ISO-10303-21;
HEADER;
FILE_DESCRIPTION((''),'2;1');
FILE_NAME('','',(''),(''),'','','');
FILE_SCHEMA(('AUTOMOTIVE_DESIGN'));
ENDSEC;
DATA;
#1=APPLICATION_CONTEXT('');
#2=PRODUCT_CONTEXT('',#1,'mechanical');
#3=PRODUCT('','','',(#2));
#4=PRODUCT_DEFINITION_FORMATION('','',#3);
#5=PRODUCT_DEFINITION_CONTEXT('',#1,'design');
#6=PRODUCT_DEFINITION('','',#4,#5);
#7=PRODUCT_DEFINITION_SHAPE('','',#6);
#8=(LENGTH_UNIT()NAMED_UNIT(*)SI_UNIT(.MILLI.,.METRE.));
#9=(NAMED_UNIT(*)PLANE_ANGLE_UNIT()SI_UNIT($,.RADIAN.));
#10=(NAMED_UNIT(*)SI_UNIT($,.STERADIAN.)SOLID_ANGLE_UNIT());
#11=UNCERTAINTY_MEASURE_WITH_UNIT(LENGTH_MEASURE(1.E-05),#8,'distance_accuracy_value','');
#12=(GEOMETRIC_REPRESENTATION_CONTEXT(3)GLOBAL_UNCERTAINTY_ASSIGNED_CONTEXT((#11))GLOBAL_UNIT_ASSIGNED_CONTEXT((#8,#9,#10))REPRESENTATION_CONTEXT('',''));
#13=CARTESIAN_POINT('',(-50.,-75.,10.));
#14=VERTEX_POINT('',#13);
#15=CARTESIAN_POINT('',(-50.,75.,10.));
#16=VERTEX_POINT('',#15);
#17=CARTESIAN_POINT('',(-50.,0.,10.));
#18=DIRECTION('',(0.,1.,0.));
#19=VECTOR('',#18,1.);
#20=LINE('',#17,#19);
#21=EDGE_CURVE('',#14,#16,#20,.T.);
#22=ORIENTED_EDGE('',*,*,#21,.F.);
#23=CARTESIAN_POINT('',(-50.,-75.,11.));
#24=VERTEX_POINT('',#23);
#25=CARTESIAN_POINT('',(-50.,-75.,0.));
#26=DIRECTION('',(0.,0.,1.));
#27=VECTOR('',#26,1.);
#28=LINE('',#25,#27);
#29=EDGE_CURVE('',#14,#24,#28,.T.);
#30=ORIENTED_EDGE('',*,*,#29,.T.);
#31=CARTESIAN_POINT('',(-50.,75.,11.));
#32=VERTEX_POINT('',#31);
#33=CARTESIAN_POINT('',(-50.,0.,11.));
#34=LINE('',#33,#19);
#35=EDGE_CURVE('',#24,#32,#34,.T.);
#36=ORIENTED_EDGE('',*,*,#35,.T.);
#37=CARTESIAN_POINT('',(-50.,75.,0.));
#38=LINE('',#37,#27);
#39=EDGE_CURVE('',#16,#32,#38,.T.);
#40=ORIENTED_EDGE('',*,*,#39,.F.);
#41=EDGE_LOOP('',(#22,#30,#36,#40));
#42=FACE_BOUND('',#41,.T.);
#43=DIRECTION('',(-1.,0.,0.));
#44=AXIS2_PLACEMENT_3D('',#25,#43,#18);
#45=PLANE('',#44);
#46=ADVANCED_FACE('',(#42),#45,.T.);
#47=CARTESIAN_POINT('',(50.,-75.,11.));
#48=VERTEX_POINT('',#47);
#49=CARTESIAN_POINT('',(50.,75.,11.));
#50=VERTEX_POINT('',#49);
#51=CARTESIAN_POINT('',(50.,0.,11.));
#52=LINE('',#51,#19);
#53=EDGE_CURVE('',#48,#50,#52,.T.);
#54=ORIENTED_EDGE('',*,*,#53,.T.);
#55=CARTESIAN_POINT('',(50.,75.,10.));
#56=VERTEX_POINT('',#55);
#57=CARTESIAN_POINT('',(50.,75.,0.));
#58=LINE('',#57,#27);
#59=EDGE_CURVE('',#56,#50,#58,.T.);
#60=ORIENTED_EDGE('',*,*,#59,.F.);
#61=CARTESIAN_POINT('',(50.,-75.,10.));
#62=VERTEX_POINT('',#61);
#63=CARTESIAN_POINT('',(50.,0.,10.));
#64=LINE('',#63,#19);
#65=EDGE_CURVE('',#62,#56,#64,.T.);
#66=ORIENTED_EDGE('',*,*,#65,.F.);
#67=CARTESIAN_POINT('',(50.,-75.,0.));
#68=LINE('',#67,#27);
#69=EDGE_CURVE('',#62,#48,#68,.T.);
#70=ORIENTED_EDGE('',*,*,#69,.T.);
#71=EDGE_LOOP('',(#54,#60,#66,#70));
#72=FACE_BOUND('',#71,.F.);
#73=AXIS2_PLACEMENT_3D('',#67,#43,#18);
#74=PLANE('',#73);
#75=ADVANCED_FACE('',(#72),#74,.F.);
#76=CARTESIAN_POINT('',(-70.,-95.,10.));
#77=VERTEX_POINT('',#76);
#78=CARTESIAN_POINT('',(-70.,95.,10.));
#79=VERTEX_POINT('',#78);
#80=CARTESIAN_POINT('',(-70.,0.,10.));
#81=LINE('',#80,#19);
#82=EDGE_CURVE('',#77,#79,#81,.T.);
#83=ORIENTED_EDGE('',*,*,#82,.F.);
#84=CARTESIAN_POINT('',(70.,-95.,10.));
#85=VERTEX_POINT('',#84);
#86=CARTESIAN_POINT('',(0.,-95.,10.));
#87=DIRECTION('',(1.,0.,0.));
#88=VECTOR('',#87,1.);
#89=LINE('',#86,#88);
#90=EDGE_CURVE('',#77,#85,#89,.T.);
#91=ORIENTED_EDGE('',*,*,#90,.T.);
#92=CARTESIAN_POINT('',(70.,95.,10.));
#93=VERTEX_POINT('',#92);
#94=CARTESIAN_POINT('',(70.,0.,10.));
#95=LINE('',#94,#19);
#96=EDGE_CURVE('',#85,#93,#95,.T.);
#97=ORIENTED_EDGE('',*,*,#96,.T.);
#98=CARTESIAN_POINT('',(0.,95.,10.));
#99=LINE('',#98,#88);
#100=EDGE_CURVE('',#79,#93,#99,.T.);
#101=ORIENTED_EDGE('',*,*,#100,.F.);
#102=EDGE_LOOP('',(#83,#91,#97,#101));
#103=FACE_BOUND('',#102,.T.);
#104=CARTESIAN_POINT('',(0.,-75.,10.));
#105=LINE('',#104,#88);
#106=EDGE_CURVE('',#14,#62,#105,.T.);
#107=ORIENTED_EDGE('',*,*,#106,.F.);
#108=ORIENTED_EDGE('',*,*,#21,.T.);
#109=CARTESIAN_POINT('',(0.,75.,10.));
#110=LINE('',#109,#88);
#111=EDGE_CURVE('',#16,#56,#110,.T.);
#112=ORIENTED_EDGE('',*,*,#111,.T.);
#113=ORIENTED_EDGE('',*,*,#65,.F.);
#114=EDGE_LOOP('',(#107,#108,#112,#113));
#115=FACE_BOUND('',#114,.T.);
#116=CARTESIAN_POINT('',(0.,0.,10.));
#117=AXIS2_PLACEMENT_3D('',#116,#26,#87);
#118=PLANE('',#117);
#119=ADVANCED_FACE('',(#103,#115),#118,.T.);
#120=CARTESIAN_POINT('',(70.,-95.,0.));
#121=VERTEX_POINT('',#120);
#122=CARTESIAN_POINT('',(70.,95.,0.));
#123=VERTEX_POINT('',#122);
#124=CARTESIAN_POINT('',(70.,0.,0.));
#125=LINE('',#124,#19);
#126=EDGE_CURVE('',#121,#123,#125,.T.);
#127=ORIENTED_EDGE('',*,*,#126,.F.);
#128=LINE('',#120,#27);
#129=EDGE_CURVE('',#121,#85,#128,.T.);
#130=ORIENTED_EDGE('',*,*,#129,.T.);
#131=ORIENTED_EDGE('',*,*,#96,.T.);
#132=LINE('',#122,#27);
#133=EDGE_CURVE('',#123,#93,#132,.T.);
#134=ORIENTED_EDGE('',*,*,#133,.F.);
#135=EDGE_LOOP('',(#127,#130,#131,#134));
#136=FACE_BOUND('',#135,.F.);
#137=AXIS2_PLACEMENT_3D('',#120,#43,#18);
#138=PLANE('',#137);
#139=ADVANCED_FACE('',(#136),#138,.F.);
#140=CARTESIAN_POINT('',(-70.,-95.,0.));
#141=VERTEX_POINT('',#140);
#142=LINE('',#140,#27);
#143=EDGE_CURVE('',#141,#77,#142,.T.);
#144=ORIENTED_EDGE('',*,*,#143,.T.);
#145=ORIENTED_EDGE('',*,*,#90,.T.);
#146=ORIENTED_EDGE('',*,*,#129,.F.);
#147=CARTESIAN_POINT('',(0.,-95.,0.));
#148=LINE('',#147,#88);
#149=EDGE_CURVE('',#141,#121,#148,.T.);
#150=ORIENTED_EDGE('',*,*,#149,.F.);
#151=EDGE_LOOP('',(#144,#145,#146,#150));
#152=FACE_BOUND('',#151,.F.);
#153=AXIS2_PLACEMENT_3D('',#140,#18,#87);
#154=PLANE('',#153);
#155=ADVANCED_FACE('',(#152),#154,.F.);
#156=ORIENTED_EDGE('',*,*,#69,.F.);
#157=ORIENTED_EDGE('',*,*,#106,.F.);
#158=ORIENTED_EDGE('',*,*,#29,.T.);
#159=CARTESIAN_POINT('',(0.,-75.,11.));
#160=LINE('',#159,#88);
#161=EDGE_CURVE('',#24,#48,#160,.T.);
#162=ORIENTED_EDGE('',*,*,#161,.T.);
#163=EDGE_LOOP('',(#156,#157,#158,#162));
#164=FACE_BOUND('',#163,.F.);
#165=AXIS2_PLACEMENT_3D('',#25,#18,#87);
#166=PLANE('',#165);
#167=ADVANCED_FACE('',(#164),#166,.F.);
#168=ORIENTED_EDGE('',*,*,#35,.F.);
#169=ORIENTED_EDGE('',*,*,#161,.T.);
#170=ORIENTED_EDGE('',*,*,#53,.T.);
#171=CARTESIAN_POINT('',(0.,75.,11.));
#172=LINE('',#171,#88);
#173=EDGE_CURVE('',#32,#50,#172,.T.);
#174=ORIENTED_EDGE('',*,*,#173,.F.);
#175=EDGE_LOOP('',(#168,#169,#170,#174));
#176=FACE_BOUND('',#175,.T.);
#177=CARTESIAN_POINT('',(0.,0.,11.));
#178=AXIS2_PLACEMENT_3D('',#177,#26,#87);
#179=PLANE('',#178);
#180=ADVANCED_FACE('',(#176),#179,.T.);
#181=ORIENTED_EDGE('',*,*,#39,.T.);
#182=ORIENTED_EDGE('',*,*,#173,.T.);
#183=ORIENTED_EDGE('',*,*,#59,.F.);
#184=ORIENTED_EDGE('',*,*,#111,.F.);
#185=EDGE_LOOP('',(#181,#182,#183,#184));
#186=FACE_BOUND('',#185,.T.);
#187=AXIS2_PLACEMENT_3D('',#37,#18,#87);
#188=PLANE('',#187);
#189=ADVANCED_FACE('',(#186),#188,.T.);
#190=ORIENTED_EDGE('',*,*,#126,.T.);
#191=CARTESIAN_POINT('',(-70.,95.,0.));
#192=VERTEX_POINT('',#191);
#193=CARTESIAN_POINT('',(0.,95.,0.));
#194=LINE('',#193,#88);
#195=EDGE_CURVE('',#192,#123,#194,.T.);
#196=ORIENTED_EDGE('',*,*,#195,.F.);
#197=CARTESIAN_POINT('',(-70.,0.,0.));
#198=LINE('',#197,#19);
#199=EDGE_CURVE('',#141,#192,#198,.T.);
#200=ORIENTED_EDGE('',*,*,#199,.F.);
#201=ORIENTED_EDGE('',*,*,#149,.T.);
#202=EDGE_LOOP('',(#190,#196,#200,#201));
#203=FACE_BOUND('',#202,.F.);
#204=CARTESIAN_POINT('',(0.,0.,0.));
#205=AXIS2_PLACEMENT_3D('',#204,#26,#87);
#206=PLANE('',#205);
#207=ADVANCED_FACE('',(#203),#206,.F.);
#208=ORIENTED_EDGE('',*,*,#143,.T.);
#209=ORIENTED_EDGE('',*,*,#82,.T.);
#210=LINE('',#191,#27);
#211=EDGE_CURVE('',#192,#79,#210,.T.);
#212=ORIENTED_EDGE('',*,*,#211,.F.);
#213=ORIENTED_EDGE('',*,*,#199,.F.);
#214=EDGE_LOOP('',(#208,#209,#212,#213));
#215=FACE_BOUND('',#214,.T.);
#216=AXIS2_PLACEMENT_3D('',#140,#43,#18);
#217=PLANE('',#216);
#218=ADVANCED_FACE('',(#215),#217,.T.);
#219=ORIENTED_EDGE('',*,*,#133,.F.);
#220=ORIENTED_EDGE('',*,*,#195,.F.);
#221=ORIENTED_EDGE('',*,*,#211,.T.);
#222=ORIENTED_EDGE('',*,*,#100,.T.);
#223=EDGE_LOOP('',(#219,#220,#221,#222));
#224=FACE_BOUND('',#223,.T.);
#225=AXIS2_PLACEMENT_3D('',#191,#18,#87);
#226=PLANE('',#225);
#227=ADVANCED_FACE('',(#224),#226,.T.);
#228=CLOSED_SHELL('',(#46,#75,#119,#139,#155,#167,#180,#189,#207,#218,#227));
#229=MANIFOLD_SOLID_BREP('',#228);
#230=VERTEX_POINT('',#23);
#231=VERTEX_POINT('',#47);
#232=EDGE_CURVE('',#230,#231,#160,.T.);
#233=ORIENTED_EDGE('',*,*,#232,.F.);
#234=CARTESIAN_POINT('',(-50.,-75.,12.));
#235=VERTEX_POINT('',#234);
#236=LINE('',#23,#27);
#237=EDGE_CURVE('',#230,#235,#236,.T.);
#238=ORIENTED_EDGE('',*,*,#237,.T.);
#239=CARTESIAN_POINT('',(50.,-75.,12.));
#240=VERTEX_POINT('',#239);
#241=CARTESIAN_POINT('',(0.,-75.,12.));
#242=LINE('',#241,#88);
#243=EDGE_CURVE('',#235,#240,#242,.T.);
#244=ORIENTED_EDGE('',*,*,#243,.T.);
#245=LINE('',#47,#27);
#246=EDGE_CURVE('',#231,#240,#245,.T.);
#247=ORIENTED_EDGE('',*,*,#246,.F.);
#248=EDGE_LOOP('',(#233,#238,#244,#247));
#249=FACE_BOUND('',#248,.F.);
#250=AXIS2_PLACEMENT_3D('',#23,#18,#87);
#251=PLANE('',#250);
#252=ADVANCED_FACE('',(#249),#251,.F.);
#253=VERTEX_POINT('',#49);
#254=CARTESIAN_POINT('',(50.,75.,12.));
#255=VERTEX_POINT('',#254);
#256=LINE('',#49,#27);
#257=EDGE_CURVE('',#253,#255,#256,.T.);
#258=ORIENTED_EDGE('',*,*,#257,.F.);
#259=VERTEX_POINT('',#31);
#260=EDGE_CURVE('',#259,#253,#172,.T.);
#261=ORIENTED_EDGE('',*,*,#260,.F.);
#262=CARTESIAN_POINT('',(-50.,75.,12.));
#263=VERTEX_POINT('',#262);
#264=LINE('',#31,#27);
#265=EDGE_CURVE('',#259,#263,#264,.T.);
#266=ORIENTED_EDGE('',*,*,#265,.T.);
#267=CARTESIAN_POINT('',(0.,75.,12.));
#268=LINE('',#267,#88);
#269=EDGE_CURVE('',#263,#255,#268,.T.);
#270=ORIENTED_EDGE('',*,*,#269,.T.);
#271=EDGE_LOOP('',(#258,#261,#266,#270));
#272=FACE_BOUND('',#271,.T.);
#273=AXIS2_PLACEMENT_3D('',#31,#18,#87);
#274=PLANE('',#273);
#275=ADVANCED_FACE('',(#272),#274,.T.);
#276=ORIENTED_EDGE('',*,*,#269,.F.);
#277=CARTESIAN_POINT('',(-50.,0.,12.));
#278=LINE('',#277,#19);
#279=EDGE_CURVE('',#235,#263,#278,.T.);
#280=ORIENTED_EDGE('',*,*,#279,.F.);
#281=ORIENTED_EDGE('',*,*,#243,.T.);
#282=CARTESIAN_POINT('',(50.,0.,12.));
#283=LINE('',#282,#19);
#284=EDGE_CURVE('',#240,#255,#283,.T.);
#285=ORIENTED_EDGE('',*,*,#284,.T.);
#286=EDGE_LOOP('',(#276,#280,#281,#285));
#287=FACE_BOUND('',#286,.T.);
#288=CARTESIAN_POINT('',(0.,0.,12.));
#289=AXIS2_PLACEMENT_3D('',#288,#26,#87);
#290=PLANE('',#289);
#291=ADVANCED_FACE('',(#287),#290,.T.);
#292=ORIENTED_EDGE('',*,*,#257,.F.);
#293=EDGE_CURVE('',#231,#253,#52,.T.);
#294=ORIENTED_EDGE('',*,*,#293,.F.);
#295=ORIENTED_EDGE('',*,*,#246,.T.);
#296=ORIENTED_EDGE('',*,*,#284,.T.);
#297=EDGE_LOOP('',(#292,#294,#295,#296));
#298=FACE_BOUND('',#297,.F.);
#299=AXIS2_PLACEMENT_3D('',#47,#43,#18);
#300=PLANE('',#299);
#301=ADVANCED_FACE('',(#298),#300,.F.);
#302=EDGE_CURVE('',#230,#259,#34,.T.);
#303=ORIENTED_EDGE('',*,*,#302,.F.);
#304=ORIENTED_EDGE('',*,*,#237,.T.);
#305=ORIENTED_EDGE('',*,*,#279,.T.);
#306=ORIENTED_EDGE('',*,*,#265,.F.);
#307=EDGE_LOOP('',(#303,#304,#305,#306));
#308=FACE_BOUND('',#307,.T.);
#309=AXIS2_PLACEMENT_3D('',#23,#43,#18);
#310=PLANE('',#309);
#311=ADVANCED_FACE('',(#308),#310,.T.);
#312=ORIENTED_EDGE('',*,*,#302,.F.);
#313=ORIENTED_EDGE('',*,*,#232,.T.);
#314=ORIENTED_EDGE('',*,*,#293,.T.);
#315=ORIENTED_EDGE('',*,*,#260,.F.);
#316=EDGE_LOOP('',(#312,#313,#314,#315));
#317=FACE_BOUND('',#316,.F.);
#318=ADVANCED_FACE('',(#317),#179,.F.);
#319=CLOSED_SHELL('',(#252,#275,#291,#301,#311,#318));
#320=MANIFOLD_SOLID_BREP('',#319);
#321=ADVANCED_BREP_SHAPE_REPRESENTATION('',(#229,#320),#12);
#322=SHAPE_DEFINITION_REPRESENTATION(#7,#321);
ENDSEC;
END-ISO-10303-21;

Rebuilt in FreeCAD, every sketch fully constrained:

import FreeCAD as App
import Part
import Sketcher
Q = App.Units.Quantity

doc = App.newDocument("Part")
params = doc.addObject("Spreadsheet::Sheet", "Params")
for row, (alias, value) in enumerate([
    ("sketch1_width", "100 mm"),
    ("sketch1_height", "150 mm"),
    ("pad1_length", "11 mm"),
    ("sketch2_width", "140 mm"),
    ("sketch2_width2", "100 mm"),
    ("sketch2_height", "190 mm"),
    ("sketch2_height2", "150 mm"),
    ("pad2_length", "10 mm"),
    ("sketch3_width", "100 mm"),
    ("sketch3_height", "150 mm"),
    ("pad3_length", "1 mm"),
], start=1):
    params.set(f"A{row}", alias)
    params.set(f"B{row}", "=" + value)
    params.setAlias(f"B{row}", alias)

body = doc.addObject("PartDesign::Body", "Body")

# Sketch on XY plane
sketch1 = doc.addObject("Sketcher::SketchObject", "Sketch")
body.addObject(sketch1)
sketch1.AttachmentSupport = (doc.XY_Plane, [""])
sketch1.MapMode = "FlatFace"
sketch1.addGeometry(Part.LineSegment(App.Vector(-50, 75, 0), App.Vector(-50, -75, 0)), False)
sketch1.addGeometry(Part.LineSegment(App.Vector(-50, -75, 0), App.Vector(50, -75, 0)), False)
sketch1.addGeometry(Part.LineSegment(App.Vector(50, -75, 0), App.Vector(50, 75, 0)), False)
sketch1.addGeometry(Part.LineSegment(App.Vector(50, 75, 0), App.Vector(-50, 75, 0)), False)
sketch1.addConstraint(Sketcher.Constraint("Coincident", 0, 2, 1, 1))
sketch1.addConstraint(Sketcher.Constraint("Coincident", 1, 2, 2, 1))
sketch1.addConstraint(Sketcher.Constraint("Coincident", 2, 2, 3, 1))
sketch1.addConstraint(Sketcher.Constraint("Coincident", 3, 2, 0, 1))
sketch1.addConstraint(Sketcher.Constraint("Vertical", 0))
sketch1.addConstraint(Sketcher.Constraint("Horizontal", 1))
sketch1.addConstraint(Sketcher.Constraint("Vertical", 2))
sketch1.addConstraint(Sketcher.Constraint("Horizontal", 3))
sketch1.addConstraint(Sketcher.Constraint("Symmetric", 0, 2, 2, 2, -1, 1))
sketch1.addConstraint(Sketcher.Constraint("DistanceX", 1, 1, 1, 2, Q("100 mm")))
sketch1.addConstraint(Sketcher.Constraint("DistanceY", 0, 2, 0, 1, Q("150 mm")))
sketch1.setExpression("Constraints[9]", "Params.sketch1_width")
sketch1.setExpression("Constraints[10]", "Params.sketch1_height")
pad1 = doc.addObject("PartDesign::Pad", "Pad")
body.addObject(pad1)
pad1.Profile = sketch1
pad1.setExpression("Length", "Params.pad1_length")

# Sketch on XY plane
sketch2 = doc.addObject("Sketcher::SketchObject", "Sketch001")
body.addObject(sketch2)
sketch2.AttachmentSupport = (doc.XY_Plane, [""])
sketch2.MapMode = "FlatFace"
sketch2.addGeometry(Part.LineSegment(App.Vector(-70, 95, 0), App.Vector(-70, -95, 0)), False)
sketch2.addGeometry(Part.LineSegment(App.Vector(-70, -95, 0), App.Vector(70, -95, 0)), False)
sketch2.addGeometry(Part.LineSegment(App.Vector(70, -95, 0), App.Vector(70, 95, 0)), False)
sketch2.addGeometry(Part.LineSegment(App.Vector(70, 95, 0), App.Vector(-70, 95, 0)), False)
sketch2.addGeometry(Part.LineSegment(App.Vector(50, -75, 0), App.Vector(-50, -75, 0)), False)
sketch2.addGeometry(Part.LineSegment(App.Vector(-50, -75, 0), App.Vector(-50, 75, 0)), False)
sketch2.addGeometry(Part.LineSegment(App.Vector(-50, 75, 0), App.Vector(50, 75, 0)), False)
sketch2.addGeometry(Part.LineSegment(App.Vector(50, 75, 0), App.Vector(50, -75, 0)), False)
sketch2.addConstraint(Sketcher.Constraint("Coincident", 0, 2, 1, 1))
sketch2.addConstraint(Sketcher.Constraint("Coincident", 1, 2, 2, 1))
sketch2.addConstraint(Sketcher.Constraint("Coincident", 2, 2, 3, 1))
sketch2.addConstraint(Sketcher.Constraint("Coincident", 3, 2, 0, 1))
sketch2.addConstraint(Sketcher.Constraint("Coincident", 4, 2, 5, 1))
sketch2.addConstraint(Sketcher.Constraint("Coincident", 5, 2, 6, 1))
sketch2.addConstraint(Sketcher.Constraint("Coincident", 6, 2, 7, 1))
sketch2.addConstraint(Sketcher.Constraint("Coincident", 7, 2, 4, 1))
sketch2.addConstraint(Sketcher.Constraint("Vertical", 0))
sketch2.addConstraint(Sketcher.Constraint("Horizontal", 1))
sketch2.addConstraint(Sketcher.Constraint("Vertical", 2))
sketch2.addConstraint(Sketcher.Constraint("Horizontal", 3))
sketch2.addConstraint(Sketcher.Constraint("Horizontal", 4))
sketch2.addConstraint(Sketcher.Constraint("Vertical", 5))
sketch2.addConstraint(Sketcher.Constraint("Horizontal", 6))
sketch2.addConstraint(Sketcher.Constraint("Vertical", 7))
sketch2.addConstraint(Sketcher.Constraint("Symmetric", 0, 2, 2, 2, -1, 1))
sketch2.addConstraint(Sketcher.Constraint("Symmetric", 4, 2, 6, 2, -1, 1))
sketch2.addConstraint(Sketcher.Constraint("DistanceX", 1, 1, 1, 2, Q("140 mm")))
sketch2.addConstraint(Sketcher.Constraint("DistanceX", 4, 2, 4, 1, Q("100 mm")))
sketch2.addConstraint(Sketcher.Constraint("DistanceY", 0, 2, 0, 1, Q("190 mm")))
sketch2.addConstraint(Sketcher.Constraint("DistanceY", 5, 1, 5, 2, Q("150 mm")))
sketch2.setExpression("Constraints[18]", "Params.sketch2_width")
sketch2.setExpression("Constraints[19]", "Params.sketch2_width2")
sketch2.setExpression("Constraints[20]", "Params.sketch2_height")
sketch2.setExpression("Constraints[21]", "Params.sketch2_height2")
pad2 = doc.addObject("PartDesign::Pad", "Pad001")
body.addObject(pad2)
pad2.Profile = sketch2
pad2.setExpression("Length", "Params.pad2_length")
body2 = doc.addObject("PartDesign::Body", "Body001")

# Sketch on XY plane
sketch3 = doc.addObject("Sketcher::SketchObject", "Sketch002")
body2.addObject(sketch3)
sketch3.AttachmentSupport = (doc.getObject("XY_Plane001"), [""])
sketch3.MapMode = "FlatFace"
sketch3.AttachmentOffset = App.Placement(App.Vector(0, 0, 11), App.Rotation())
sketch3.addGeometry(Part.LineSegment(App.Vector(-50, 75, 0), App.Vector(-50, -75, 0)), False)
sketch3.addGeometry(Part.LineSegment(App.Vector(-50, -75, 0), App.Vector(50, -75, 0)), False)
sketch3.addGeometry(Part.LineSegment(App.Vector(50, -75, 0), App.Vector(50, 75, 0)), False)
sketch3.addGeometry(Part.LineSegment(App.Vector(50, 75, 0), App.Vector(-50, 75, 0)), False)
sketch3.addConstraint(Sketcher.Constraint("Coincident", 0, 2, 1, 1))
sketch3.addConstraint(Sketcher.Constraint("Coincident", 1, 2, 2, 1))
sketch3.addConstraint(Sketcher.Constraint("Coincident", 2, 2, 3, 1))
sketch3.addConstraint(Sketcher.Constraint("Coincident", 3, 2, 0, 1))
sketch3.addConstraint(Sketcher.Constraint("Vertical", 0))
sketch3.addConstraint(Sketcher.Constraint("Horizontal", 1))
sketch3.addConstraint(Sketcher.Constraint("Vertical", 2))
sketch3.addConstraint(Sketcher.Constraint("Horizontal", 3))
sketch3.addConstraint(Sketcher.Constraint("Symmetric", 0, 2, 2, 2, -1, 1))
sketch3.addConstraint(Sketcher.Constraint("DistanceX", 1, 1, 1, 2, Q("100 mm")))
sketch3.addConstraint(Sketcher.Constraint("DistanceY", 0, 2, 0, 1, Q("150 mm")))
sketch3.setExpression("Constraints[9]", "Params.sketch3_width")
sketch3.setExpression("Constraints[10]", "Params.sketch3_height")
pad3 = doc.addObject("PartDesign::Pad", "Pad002")
body2.addObject(pad3)
pad3.Profile = sketch3
pad3.setExpression("Length", "Params.pad3_length")

doc.recompute()
